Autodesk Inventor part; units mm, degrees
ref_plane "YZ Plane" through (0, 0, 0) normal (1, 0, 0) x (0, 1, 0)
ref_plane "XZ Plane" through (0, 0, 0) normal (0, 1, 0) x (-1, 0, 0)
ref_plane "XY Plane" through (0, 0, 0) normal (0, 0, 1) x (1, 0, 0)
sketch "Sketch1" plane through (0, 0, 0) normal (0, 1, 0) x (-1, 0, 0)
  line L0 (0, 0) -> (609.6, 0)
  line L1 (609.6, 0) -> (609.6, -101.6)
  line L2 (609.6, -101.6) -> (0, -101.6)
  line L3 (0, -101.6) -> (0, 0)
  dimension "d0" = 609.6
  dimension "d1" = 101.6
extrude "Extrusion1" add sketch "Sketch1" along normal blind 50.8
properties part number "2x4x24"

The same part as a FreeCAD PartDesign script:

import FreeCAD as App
import Part
import Sketcher

V = App.Vector
Q = App.Units.Quantity


def add_polygon(sketch, points):
    """Adds a closed chain of lines whose ends are joined by coincident constraints."""
    first, n = sketch.GeometryCount, len(points)
    for a, b in zip(points, points[1:] + points[:1]):
        sketch.addGeometry(Part.LineSegment(App.Vector(*a, 0), App.Vector(*b, 0)), False)
    for i in range(n):
        sketch.addConstraint(Sketcher.Constraint("Coincident", first + i, 2, first + (i + 1) % n, 1))

doc = App.newDocument("Part")
params = doc.addObject("Spreadsheet::Sheet", "Params")
for row, (alias, value) in enumerate([
    ("sketch1_width", "24 in"),
    ("sketch1_height", "4 in"),
    ("pad1_length", "2 in"),
], start=1):
    params.set(f"A{row}", alias)
    params.set(f"B{row}", "=" + value)
    params.setAlias(f"B{row}", alias)

body = doc.addObject("PartDesign::Body", "Body")

sketch1 = body.newObject("Sketcher::SketchObject", "Sketch")
sketch1.AttachmentSupport = (doc.getObject("XZ_Plane"), [""])
sketch1.MapMode = "FlatFace"
add_polygon(sketch1, [(-609.6, 0), (0, 0), (0, -101.6), (-609.6, -101.6)])
sketch1.addConstraint([
    Sketcher.Constraint("Horizontal", 0),
    Sketcher.Constraint("Vertical", 1),
    Sketcher.Constraint("Horizontal", 2),
    Sketcher.Constraint("Vertical", 3),
    Sketcher.Constraint("Coincident", 0, 2, -1, 1),
    Sketcher.Constraint("DistanceX", 0, 1, 0, 2, Q("24 in")),
    Sketcher.Constraint("DistanceY", 1, 2, 1, 1, Q("4 in")),
])
sketch1.setExpression("Constraints[9]", "Params.sketch1_width")
sketch1.setExpression("Constraints[10]", "Params.sketch1_height")
pad1 = body.newObject("PartDesign::Pad", "Pad")
pad1.Profile = sketch1
pad1.setExpression("Length", "Params.pad1_length")
pad1.Reversed = True

doc.recompute()
